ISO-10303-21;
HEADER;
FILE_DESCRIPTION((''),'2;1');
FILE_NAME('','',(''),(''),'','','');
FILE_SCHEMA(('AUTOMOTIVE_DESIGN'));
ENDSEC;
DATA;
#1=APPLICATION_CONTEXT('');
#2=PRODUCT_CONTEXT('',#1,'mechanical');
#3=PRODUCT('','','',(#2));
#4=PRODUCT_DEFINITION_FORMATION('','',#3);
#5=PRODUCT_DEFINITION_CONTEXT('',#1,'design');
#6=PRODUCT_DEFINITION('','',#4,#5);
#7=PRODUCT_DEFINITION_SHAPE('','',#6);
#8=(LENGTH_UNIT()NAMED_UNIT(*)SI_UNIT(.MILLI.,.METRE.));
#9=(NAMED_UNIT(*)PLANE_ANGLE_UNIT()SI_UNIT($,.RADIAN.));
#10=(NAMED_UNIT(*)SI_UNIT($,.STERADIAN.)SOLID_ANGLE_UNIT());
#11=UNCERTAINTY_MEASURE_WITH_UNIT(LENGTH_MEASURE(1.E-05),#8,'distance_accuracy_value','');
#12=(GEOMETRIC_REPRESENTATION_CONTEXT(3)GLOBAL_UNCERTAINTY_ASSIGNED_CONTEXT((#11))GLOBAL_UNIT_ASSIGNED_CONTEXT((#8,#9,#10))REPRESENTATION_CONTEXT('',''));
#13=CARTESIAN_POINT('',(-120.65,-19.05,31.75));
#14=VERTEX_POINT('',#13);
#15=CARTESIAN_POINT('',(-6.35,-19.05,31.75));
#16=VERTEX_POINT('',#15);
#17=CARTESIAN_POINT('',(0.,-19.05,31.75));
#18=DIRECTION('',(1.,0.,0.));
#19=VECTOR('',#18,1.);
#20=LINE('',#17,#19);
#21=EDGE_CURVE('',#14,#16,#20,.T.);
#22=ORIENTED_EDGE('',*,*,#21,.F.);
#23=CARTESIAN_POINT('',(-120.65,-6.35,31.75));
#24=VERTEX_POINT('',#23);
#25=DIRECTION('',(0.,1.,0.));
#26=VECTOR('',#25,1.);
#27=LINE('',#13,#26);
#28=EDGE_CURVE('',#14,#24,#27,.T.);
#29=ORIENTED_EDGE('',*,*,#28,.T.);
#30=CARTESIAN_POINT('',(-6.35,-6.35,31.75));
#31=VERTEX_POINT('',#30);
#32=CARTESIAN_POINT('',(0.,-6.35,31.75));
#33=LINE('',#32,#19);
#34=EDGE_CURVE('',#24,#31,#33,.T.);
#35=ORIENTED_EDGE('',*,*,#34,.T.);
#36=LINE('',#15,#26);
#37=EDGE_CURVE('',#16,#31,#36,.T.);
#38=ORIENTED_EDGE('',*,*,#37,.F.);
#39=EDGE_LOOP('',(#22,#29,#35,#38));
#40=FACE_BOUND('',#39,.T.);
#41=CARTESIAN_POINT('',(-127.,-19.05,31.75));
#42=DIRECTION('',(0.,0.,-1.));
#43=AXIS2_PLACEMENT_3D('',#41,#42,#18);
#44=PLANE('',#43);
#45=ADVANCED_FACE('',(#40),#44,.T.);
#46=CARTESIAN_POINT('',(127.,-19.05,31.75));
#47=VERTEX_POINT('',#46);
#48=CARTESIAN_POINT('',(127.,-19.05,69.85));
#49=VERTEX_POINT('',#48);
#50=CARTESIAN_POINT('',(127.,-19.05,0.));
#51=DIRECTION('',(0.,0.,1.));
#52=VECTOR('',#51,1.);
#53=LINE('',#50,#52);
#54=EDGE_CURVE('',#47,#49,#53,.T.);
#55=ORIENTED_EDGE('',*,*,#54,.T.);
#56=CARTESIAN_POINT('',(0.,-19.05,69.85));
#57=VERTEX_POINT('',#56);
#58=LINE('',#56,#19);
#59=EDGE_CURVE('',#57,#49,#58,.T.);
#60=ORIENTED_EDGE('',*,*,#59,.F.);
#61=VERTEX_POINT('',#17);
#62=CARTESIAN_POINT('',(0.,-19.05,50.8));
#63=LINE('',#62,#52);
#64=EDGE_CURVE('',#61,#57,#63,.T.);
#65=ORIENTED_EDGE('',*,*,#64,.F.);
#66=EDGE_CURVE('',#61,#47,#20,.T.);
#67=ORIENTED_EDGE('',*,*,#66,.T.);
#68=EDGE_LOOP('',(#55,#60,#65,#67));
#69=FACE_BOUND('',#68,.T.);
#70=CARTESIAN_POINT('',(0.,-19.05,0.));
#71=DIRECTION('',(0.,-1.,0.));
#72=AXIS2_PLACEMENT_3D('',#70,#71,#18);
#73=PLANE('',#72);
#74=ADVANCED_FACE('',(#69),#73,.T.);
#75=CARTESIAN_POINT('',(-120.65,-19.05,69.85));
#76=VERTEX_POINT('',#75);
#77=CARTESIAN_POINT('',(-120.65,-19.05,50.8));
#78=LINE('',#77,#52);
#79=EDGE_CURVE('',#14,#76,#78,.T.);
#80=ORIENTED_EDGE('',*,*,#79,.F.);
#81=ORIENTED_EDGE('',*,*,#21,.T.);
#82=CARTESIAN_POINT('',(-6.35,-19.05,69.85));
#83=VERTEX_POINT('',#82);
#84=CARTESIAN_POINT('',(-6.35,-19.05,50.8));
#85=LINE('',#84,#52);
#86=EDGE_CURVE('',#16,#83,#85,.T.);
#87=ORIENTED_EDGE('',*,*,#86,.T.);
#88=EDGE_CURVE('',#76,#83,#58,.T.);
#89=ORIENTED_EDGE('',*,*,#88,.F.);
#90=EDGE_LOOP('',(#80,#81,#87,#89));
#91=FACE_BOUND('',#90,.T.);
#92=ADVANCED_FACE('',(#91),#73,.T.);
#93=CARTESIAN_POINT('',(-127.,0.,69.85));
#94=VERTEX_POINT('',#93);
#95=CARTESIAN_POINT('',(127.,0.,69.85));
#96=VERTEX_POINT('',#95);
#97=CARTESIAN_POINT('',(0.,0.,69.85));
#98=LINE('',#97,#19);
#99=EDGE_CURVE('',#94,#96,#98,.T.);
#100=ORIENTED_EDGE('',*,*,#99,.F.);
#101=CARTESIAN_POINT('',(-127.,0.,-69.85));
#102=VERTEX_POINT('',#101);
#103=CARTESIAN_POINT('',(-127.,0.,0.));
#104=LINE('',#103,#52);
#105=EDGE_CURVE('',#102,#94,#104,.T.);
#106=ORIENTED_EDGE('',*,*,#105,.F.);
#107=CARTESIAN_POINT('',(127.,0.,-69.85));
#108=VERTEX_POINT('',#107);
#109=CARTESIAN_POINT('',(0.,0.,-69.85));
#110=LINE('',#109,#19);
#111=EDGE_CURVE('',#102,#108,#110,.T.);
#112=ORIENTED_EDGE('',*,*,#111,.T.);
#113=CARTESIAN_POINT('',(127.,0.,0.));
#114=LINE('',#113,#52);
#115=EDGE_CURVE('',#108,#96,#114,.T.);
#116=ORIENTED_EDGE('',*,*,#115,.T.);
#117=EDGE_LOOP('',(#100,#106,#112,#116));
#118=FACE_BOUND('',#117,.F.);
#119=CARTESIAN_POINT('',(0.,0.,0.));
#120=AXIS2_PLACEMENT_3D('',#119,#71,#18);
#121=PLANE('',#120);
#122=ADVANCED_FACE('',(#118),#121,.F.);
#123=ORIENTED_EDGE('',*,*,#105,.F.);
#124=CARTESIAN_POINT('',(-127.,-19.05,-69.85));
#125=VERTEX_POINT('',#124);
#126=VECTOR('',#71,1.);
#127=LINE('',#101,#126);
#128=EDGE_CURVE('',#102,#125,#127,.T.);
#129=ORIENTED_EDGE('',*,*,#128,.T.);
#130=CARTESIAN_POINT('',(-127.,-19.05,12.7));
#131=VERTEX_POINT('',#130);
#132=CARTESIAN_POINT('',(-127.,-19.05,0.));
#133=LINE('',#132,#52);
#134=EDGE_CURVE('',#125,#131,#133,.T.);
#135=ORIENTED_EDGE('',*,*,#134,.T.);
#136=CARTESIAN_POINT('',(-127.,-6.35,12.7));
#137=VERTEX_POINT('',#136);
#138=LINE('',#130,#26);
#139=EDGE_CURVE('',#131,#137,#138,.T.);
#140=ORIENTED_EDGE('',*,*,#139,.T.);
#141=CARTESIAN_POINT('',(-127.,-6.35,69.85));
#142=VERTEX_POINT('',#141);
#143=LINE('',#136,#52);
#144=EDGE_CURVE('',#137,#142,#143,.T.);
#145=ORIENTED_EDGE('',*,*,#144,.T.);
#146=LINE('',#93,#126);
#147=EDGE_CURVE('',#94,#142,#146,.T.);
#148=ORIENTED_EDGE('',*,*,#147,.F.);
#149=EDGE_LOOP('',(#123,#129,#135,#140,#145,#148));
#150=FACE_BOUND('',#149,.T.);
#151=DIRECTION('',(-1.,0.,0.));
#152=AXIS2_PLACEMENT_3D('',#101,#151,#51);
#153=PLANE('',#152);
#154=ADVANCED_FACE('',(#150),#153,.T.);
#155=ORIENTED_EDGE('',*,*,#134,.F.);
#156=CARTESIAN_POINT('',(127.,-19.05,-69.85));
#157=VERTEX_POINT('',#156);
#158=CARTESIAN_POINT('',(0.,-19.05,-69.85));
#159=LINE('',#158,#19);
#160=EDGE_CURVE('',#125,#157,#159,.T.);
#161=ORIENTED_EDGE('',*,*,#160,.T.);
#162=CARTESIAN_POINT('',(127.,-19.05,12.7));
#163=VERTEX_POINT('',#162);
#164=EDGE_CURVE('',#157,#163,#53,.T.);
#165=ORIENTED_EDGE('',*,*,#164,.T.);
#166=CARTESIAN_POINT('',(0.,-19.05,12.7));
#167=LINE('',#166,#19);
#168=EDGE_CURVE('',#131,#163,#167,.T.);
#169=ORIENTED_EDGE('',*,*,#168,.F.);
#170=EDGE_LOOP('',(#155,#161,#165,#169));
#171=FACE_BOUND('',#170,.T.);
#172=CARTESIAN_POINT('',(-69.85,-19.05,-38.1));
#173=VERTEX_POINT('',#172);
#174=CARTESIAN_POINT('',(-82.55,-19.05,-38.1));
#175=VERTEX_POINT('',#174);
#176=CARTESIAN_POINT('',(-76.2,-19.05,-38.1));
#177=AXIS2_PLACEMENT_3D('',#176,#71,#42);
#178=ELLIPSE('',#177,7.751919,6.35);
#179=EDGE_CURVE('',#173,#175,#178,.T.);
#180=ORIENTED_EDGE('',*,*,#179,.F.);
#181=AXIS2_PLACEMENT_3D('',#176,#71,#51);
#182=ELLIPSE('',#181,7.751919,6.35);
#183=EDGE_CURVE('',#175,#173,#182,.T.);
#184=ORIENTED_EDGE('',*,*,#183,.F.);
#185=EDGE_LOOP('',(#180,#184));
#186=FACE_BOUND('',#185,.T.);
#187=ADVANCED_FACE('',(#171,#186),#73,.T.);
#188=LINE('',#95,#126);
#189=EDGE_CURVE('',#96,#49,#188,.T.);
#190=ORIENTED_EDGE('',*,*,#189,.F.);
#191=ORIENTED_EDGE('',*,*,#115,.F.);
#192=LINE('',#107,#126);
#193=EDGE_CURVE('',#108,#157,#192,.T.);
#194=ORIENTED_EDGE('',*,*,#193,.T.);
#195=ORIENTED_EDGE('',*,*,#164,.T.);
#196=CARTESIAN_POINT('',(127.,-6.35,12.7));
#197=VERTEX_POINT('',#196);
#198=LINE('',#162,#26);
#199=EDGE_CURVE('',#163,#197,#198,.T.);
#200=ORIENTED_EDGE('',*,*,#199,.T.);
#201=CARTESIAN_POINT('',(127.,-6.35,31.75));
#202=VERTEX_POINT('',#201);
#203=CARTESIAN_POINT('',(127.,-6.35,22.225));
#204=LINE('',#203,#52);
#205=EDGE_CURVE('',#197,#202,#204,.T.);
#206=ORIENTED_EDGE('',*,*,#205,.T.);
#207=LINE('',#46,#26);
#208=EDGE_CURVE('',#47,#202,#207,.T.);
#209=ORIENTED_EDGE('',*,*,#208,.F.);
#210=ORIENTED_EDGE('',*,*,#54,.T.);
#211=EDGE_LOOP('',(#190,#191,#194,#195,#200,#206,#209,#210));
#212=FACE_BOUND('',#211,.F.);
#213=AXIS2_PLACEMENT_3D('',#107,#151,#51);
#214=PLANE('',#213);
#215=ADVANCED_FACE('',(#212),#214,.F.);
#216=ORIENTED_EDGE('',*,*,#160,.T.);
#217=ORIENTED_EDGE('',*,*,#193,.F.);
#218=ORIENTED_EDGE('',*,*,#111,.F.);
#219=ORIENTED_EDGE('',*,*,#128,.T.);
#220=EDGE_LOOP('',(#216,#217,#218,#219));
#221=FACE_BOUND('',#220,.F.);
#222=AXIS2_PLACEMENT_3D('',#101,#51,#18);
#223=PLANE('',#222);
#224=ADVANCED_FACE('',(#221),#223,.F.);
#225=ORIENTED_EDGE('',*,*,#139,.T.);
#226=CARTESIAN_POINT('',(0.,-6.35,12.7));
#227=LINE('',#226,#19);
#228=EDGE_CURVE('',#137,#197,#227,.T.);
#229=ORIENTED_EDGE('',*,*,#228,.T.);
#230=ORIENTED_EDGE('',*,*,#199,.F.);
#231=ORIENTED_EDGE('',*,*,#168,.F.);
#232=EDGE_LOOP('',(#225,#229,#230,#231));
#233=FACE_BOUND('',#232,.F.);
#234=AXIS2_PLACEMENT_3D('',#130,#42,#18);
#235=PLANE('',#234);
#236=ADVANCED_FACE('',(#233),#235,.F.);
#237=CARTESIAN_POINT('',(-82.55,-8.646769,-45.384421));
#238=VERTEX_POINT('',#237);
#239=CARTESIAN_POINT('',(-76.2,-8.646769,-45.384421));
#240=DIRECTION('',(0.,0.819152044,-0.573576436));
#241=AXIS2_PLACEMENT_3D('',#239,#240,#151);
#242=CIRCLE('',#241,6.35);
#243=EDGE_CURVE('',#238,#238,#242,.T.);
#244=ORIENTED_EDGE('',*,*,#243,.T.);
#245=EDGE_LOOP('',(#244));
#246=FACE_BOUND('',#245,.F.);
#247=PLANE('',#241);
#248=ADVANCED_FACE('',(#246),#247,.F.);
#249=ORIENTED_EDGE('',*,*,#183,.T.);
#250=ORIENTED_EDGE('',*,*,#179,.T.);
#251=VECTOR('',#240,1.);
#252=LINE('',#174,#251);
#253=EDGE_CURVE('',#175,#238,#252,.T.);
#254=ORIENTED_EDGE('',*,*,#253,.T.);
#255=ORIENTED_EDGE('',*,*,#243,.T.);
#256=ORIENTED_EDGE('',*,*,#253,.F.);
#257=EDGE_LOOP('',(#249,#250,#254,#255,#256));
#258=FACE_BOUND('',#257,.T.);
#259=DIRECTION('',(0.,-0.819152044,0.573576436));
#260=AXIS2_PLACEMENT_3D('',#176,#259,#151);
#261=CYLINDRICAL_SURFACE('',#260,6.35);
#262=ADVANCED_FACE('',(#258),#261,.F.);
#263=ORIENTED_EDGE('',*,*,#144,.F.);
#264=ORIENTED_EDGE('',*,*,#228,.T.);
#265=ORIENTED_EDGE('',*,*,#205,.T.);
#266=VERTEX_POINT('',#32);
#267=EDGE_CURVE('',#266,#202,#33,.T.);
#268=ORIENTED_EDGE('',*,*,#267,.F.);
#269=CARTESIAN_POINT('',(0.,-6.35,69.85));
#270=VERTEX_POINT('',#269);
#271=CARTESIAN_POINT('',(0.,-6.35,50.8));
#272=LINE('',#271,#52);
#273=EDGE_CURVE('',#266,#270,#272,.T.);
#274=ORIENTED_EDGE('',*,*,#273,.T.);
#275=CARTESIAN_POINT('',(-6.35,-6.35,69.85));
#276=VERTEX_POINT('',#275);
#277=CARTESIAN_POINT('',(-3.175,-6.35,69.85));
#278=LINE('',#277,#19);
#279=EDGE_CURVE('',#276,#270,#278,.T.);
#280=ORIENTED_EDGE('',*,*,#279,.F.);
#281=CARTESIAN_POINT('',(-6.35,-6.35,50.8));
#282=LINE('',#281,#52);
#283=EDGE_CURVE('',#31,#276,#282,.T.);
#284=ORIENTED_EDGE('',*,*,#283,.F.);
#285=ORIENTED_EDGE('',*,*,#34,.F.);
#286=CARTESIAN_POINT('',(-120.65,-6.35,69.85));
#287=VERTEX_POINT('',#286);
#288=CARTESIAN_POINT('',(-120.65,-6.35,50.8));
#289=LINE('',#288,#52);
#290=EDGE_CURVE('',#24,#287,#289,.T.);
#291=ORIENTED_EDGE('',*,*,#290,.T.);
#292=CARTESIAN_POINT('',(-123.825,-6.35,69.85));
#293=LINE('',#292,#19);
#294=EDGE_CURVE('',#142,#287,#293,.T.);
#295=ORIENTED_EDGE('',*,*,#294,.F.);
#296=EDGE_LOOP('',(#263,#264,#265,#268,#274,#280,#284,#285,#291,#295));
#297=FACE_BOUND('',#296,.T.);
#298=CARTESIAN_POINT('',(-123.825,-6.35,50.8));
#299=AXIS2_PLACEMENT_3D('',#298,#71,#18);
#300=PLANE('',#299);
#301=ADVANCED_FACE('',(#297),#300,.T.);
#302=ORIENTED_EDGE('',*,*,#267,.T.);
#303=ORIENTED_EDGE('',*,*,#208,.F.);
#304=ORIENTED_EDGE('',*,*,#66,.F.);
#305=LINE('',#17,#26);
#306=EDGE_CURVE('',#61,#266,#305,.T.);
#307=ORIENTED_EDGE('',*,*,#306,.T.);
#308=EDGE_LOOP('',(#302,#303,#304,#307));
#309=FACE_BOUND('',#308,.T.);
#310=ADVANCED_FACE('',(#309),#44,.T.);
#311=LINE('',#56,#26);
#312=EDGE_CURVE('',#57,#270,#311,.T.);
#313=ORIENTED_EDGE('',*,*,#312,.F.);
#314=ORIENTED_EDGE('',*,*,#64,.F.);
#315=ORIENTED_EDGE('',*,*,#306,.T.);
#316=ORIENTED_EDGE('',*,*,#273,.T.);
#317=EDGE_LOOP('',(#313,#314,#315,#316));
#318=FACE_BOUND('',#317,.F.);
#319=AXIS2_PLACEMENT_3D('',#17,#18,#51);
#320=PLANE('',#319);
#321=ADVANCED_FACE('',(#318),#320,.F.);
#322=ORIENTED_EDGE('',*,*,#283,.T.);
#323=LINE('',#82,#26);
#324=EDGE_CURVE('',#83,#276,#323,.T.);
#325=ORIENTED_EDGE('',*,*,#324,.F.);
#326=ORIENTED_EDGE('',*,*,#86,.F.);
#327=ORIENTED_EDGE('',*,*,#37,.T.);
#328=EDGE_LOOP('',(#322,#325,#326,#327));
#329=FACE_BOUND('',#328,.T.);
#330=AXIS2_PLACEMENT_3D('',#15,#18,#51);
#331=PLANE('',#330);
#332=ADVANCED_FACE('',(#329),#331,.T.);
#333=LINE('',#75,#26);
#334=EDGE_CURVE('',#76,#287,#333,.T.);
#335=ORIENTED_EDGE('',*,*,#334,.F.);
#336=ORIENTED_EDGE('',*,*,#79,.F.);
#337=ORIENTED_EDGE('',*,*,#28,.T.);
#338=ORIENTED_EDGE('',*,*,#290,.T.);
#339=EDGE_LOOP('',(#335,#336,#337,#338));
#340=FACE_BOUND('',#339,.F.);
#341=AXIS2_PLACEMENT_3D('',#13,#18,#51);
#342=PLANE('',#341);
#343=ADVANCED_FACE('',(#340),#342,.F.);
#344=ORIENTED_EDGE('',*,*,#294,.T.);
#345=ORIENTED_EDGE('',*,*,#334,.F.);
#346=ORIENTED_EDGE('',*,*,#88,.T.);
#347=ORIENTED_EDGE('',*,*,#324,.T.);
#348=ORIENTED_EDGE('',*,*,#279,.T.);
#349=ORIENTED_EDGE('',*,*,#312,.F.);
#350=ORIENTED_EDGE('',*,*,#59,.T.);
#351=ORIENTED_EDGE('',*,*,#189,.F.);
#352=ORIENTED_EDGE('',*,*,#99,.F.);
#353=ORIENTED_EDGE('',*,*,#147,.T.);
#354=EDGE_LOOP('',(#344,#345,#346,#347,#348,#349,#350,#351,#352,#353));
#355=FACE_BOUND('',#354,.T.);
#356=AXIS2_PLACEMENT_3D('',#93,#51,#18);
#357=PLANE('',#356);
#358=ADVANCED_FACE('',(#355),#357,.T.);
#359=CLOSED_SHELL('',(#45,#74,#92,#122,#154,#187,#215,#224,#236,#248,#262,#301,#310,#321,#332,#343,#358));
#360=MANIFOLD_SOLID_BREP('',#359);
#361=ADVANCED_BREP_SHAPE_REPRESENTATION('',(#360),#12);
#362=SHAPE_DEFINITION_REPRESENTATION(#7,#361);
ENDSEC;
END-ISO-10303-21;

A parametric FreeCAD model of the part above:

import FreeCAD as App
import Part
import Sketcher
from FreeCAD import Vector
Q = App.Units.Quantity


def add_polygon(sketch, points):
    """Adds a closed chain of lines whose ends are joined by coincident constraints."""
    first, n = sketch.GeometryCount, len(points)
    for a, b in zip(points, points[1:] + points[:1]):
        sketch.addGeometry(Part.LineSegment(App.Vector(*a, 0), App.Vector(*b, 0)), False)
    for i in range(n):
        sketch.addConstraint(Sketcher.Constraint("Coincident", first + i, 2, first + (i + 1) % n, 1))

doc = App.newDocument("Part")
body = doc.addObject("PartDesign::Body", "Body")

# Sketch on XZ plane
sketch1 = body.newObject("Sketcher::SketchObject", "Sketch")
sketch1.AttachmentSupport = (doc.getObject("XZ_Plane"), [""])
sketch1.MapMode = "FlatFace"
add_polygon(sketch1, [(-127, 70), (-127, -70), (127, -70), (127, 70)])  # lines 0-3
sketch1.addConstraint([
    Sketcher.Constraint("Vertical", 0),
    Sketcher.Constraint("Horizontal", 1),
    Sketcher.Constraint("Vertical", 2),
    Sketcher.Constraint("Horizontal", 3),
    Sketcher.Constraint("Symmetric", 0, 2, 2, 2, -1, 1),
    Sketcher.Constraint("DistanceX", 1, 1, 1, 2, Q("10 in")),
    Sketcher.Constraint("DistanceY", 0, 2, 0, 1, Q("5.5 in")),
])
pad1 = body.newObject("PartDesign::Pad", "Pad")
pad1.Profile = sketch1
pad1.Length = Q("0.75 in")

# Sketch on XZ plane
sketch2 = body.newObject("Sketcher::SketchObject", "Sketch001")
sketch2.AttachmentSupport = (doc.getObject("XZ_Plane"), [""])
sketch2.MapMode = "FlatFace"
sketch2.AttachmentOffset = App.Placement(Vector(0, 0, 0.75 * 25.4), App.Rotation())
add_polygon(sketch2, [(-127, 32), (-127, 13), (127, 13), (127, 32)])  # lines 0-3
sketch2.addConstraint([
    Sketcher.Constraint("Vertical", 0),
    Sketcher.Constraint("Horizontal", 1),
    Sketcher.Constraint("Vertical", 2),
    Sketcher.Constraint("Horizontal", 3),
    Sketcher.Constraint("DistanceX", 1, 1, 1, 2, Q("10 in")),
    Sketcher.Constraint("DistanceX", 0, 2, -1, 1, Q("5 in")),
    Sketcher.Constraint("DistanceY", 0, 2, 0, 1, Q("0.75 in")),
    Sketcher.Constraint("DistanceY", -1, 1, 0, 2, Q("0.5 in")),
])
pocket1 = body.newObject("PartDesign::Pocket", "Pocket")
pocket1.Profile = sketch2
pocket1.Length = Q("0.5 in")

# Sketch on XZ plane
sketch3 = body.newObject("Sketcher::SketchObject", "Sketch002")
sketch3.AttachmentSupport = (doc.getObject("XZ_Plane"), [""])
sketch3.MapMode = "FlatFace"
sketch3.AttachmentOffset = App.Placement(Vector(0, 0, 0.75 * 25.4), App.Rotation())
add_polygon(sketch3, [(-6, 70), (-6, 32), (0, 32), (0, 70)])  # lines 0-3
add_polygon(sketch3, [(-127, 70), (-127, 32), (-121, 32), (-121, 70)])  # lines 4-7
sketch3.addConstraint([
    Sketcher.Constraint("Vertical", 0),
    Sketcher.Constraint("Horizontal", 1),
    Sketcher.Constraint("Vertical", 2),
    Sketcher.Constraint("Horizontal", 3),
    Sketcher.Constraint("Vertical", 4),
    Sketcher.Constraint("Horizontal", 5),
    Sketcher.Constraint("Vertical", 6),
    Sketcher.Constraint("Horizontal", 7),
    Sketcher.Constraint("PointOnObject", 1, 2, -2),
    Sketcher.Constraint("Horizontal", 1, 2, 4, 2),
    Sketcher.Constraint("Horizontal", 3, 2, 6, 2),
    Sketcher.Constraint("Equal", 3, 5),
    Sketcher.Constraint("DistanceY", 0, 2, 0, 1, Q("1.5 in")),
    Sketcher.Constraint("DistanceX", 4, 2, -1, 1, Q("5 in")),
    Sketcher.Constraint("DistanceX", 1, 1, 1, 2, Q("0.25 in")),
    Sketcher.Constraint("DistanceY", -1, 1, 0, 2, Q("1.25 in")),
])
pocket2 = body.newObject("PartDesign::Pocket", "Pocket001")
pocket2.Profile = sketch3
pocket2.Length = Q("0.5 in")

# Sketch on an angled plane
sketch4 = body.newObject("Sketcher::SketchObject", "Sketch003")
sketch4.Placement = App.Placement(Vector(0, 5.118403, -3.583944), App.Rotation(Vector(-1, 0, 0), Vector(0, 0.573576436, 0.819152044), Vector(0, 0.819152044, -0.573576436), "ZXY"))
sketch4.addGeometry(Part.Circle(Vector(76, -42, 0), Vector(0, 0, 1), 6), False)
sketch4.addConstraint([
    Sketcher.Constraint("Diameter", 0, Q("0.5 in")),
    Sketcher.Constraint("DistanceX", -1, 1, 0, 3, Q("3 in")),
    Sketcher.Constraint("DistanceY", 0, 3, -1, 1, 42.136324),
])
pocket3 = body.newObject("PartDesign::Pocket", "Pocket002")
pocket3.Profile = sketch4
pocket3.Type = "TwoLengths"
pocket3.Length = Q("0.5 in")
pocket3.Length2 = Q("0.5 in")
pocket3.Reversed = True

doc.recompute()
